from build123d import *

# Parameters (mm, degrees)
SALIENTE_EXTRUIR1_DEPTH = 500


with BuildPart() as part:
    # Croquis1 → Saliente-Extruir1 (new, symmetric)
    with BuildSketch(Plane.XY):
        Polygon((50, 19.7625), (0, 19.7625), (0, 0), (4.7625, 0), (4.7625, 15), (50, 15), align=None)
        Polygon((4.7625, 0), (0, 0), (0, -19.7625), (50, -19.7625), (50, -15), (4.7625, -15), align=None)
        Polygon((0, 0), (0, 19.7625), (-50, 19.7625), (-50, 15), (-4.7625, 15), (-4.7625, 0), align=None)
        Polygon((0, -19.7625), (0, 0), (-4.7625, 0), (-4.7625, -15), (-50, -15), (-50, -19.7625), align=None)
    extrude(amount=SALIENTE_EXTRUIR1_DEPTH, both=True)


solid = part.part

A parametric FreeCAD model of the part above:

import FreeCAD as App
import Part
import Sketcher
Q = App.Units.Quantity

doc = App.newDocument("Part")
body = doc.addObject("PartDesign::Body", "Body")

# Sketch on XY plane
sketch1 = body.newObject("Sketcher::SketchObject", "Sketch")
sketch1.AttachmentSupport = (doc.getObject("XY_Plane"), [""])
sketch1.MapMode = "FlatFace"
sketch1.addGeometry([
    Part.LineSegment(App.Vector(50, 19.8, 0), App.Vector(-50, 19.8, 0)),  # 0
    Part.LineSegment(App.Vector(-50, 19.8, 0), App.Vector(-50, 15, 0)),  # 1
    Part.LineSegment(App.Vector(-50, 15, 0), App.Vector(-4.8, 15, 0)),  # 2
    Part.LineSegment(App.Vector(-4.8, 15, 0), App.Vector(-4.8, -15, 0)),  # 3
    Part.LineSegment(App.Vector(-4.8, -15, 0), App.Vector(-50, -15, 0)),  # 4
    Part.LineSegment(App.Vector(-50, -15, 0), App.Vector(-50, -19.8, 0)),  # 5
    Part.LineSegment(App.Vector(-50, -19.8, 0), App.Vector(50, -19.8, 0)),  # 6
    Part.LineSegment(App.Vector(50, -19.8, 0), App.Vector(50, -15, 0)),  # 7
    Part.LineSegment(App.Vector(50, -15, 0), App.Vector(4.8, -15, 0)),  # 8
    Part.LineSegment(App.Vector(4.8, -15, 0), App.Vector(4.8, 15, 0)),  # 9
    Part.LineSegment(App.Vector(4.8, 15, 0), App.Vector(50, 15, 0)),  # 10
    Part.LineSegment(App.Vector(50, 15, 0), App.Vector(50, 19.8, 0)),  # 11
], False)
sketch1.addConstraint([
    Sketcher.Constraint("Coincident", 0, 2, 1, 1),
    Sketcher.Constraint("Coincident", 1, 2, 2, 1),
    Sketcher.Constraint("Coincident", 2, 2, 3, 1),
    Sketcher.Constraint("Coincident", 3, 2, 4, 1),
    Sketcher.Constraint("Coincident", 4, 2, 5, 1),
    Sketcher.Constraint("Coincident", 5, 2, 6, 1),
    Sketcher.Constraint("Coincident", 6, 2, 7, 1),
    Sketcher.Constraint("Coincident", 7, 2, 8, 1),
    Sketcher.Constraint("Coincident", 8, 2, 9, 1),
    Sketcher.Constraint("Coincident", 9, 2, 10, 1),
    Sketcher.Constraint("Coincident", 10, 2, 11, 1),
    Sketcher.Constraint("Coincident", 11, 2, 0, 1),
    Sketcher.Constraint("Horizontal", 0),
    Sketcher.Constraint("Vertical", 1),
    Sketcher.Constraint("Horizontal", 2),
    Sketcher.Constraint("Vertical", 3),
    Sketcher.Constraint("Horizontal", 4),
    Sketcher.Constraint("Vertical", 5),
    Sketcher.Constraint("Horizontal", 6),
    Sketcher.Constraint("Vertical", 7),
    Sketcher.Constraint("Horizontal", 8),
    Sketcher.Constraint("Vertical", 9),
    Sketcher.Constraint("Horizontal", 10),
    Sketcher.Constraint("Vertical", 11),
    Sketcher.Constraint("Symmetric", 0, 2, 6, 2, -1, 1),
    Sketcher.Constraint("Symmetric", 2, 2, 8, 2, -1, 1),
    Sketcher.Constraint("Symmetric", 4, 2, 10, 2, -1, 1),
    Sketcher.Constraint("Symmetric", 4, 2, 7, 2, -2),
    Sketcher.Constraint("DistanceX", 0, 2, 0, 1, Q("100 mm")),
    Sketcher.Constraint("DistanceY", 3, 2, 3, 1, Q("30 mm")),
    Sketcher.Constraint("DistanceX", 2, 1, 2, 2, Q("45.2375 mm")),
    Sketcher.Constraint("DistanceY", 1, 2, 1, 1, Q("4.7625 mm")),
])
pad1 = body.newObject("PartDesign::Pad", "Pad")
pad1.Profile = sketch1
pad1.Length = 1000
pad1.Midplane = True

doc.recompute()
